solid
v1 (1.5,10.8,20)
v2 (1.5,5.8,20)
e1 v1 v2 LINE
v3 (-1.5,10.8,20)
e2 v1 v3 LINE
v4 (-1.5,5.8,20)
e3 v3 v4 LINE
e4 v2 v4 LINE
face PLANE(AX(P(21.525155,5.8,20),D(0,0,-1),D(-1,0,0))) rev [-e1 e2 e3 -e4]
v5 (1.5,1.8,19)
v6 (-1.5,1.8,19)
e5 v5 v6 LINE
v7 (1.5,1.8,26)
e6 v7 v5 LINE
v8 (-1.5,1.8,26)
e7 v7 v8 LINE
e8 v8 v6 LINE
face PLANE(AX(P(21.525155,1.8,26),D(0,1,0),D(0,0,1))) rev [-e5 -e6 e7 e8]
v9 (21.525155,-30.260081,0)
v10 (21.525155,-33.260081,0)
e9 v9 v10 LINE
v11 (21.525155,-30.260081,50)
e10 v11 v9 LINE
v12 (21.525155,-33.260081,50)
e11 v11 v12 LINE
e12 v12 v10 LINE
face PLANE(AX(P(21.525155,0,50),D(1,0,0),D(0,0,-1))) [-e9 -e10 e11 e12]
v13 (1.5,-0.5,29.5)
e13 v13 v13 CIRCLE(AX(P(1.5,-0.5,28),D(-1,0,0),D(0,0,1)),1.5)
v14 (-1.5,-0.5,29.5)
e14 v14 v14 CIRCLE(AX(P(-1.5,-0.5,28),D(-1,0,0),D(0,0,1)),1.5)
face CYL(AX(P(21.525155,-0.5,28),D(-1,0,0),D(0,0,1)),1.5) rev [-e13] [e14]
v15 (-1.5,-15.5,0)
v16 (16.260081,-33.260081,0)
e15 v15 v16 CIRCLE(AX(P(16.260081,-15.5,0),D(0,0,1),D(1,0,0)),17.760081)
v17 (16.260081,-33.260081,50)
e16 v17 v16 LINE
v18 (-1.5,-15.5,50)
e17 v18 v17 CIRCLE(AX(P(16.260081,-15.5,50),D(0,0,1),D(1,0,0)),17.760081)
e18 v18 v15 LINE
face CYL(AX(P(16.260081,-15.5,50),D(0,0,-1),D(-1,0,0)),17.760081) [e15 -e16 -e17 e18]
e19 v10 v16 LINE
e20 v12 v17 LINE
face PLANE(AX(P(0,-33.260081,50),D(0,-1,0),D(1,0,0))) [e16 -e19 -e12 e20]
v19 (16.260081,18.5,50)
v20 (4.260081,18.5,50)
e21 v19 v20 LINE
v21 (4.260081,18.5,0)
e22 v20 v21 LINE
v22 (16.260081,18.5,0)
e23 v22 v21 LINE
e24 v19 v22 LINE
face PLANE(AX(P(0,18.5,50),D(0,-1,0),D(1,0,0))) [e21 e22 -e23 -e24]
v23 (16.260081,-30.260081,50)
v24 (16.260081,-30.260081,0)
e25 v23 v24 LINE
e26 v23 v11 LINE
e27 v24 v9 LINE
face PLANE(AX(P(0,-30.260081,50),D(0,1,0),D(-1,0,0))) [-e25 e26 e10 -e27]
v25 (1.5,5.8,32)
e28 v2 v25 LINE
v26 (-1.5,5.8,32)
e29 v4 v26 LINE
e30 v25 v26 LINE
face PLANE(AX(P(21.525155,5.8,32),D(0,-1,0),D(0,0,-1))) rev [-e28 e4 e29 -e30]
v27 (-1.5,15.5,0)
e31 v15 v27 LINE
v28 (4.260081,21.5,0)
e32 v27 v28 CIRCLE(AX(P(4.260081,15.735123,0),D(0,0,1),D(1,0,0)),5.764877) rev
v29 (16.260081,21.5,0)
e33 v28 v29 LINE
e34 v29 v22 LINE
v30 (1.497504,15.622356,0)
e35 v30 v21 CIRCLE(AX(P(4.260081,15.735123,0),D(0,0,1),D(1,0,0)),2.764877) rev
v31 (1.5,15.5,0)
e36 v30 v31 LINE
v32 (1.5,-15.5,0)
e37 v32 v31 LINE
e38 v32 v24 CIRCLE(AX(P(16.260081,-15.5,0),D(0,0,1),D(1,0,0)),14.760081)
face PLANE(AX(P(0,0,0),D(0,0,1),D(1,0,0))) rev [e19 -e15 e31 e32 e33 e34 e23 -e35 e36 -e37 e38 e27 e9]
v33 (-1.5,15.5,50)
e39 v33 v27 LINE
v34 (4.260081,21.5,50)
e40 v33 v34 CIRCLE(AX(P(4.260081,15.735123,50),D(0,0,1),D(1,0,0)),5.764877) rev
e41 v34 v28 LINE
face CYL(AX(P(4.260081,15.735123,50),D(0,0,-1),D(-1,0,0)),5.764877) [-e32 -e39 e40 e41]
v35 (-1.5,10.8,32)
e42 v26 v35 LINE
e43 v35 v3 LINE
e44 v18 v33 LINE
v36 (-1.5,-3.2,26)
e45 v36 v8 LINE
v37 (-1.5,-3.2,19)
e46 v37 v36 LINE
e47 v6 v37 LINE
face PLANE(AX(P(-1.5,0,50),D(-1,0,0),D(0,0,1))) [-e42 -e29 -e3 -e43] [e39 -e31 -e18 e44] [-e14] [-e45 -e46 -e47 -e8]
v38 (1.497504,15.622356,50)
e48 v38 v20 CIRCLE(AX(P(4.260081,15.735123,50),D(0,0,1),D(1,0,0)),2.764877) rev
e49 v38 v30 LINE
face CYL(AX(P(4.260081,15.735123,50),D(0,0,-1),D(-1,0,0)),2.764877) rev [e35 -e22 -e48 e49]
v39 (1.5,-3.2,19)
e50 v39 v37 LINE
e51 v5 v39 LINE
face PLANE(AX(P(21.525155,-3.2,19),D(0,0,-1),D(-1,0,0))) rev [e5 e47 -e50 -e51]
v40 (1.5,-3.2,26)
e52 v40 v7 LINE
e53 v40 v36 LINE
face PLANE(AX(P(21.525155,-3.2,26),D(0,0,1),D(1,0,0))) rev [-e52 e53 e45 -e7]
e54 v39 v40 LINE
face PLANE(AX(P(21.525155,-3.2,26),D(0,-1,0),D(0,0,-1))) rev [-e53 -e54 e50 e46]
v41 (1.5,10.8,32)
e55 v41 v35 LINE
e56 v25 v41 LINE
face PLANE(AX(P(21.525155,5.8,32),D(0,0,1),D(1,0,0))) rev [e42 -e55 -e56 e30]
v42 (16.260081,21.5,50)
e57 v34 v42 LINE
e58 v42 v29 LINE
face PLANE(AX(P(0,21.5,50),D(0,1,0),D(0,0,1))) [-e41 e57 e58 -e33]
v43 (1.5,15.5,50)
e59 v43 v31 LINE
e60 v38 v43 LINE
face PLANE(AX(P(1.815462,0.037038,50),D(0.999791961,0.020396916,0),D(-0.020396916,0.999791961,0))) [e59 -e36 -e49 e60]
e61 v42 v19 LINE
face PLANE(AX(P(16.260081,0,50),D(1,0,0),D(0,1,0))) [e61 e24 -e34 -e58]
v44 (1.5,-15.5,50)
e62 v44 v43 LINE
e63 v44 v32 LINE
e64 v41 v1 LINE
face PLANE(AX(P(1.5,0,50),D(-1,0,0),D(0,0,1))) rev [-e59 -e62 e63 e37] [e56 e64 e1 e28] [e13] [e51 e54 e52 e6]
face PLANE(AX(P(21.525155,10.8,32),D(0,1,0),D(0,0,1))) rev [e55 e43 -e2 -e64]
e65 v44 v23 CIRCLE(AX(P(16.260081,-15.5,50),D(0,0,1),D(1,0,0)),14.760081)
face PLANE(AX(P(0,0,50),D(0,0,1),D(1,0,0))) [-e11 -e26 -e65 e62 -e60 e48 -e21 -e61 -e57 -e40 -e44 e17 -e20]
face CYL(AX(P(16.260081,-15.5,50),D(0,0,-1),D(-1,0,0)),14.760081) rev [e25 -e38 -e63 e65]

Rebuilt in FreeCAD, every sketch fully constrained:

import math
import FreeCAD as App
import Part
import Sketcher

V = App.Vector
Q = App.Units.Quantity


def add_polygon(sketch, points):
    """Adds a closed chain of lines whose ends are joined by coincident constraints."""
    first, n = sketch.GeometryCount, len(points)
    for a, b in zip(points, points[1:] + points[:1]):
        sketch.addGeometry(Part.LineSegment(App.Vector(*a, 0), App.Vector(*b, 0)), False)
    for i in range(n):
        sketch.addConstraint(Sketcher.Constraint("Coincident", first + i, 2, first + (i + 1) % n, 1))

doc = App.newDocument("Part")
body = doc.addObject("PartDesign::Body", "Body")

# Sketch on XY plane
sketch1 = body.newObject("Sketcher::SketchObject", "Sketch")
sketch1.AttachmentSupport = (doc.getObject("XY_Plane"), [""])
sketch1.MapMode = "FlatFace"
sketch1.addGeometry([
    Part.LineSegment(V(-1.5, 15.5, 0), V(-1.5, -15.5, 0)),  # 0
    Part.ArcOfCircle(Part.Circle(V(16.26, -15.5, 0), V(0, 0, 1), 17.76), math.radians(180), math.radians(270)),  # 1
    Part.LineSegment(V(16.26, -33.26, 0), V(21.53, -33.26, 0)),  # 2
    Part.LineSegment(V(21.53, -33.26, 0), V(21.53, -30.26, 0)),  # 3
    Part.LineSegment(V(21.53, -30.26, 0), V(16.26, -30.26, 0)),  # 4
    Part.ArcOfCircle(Part.Circle(V(16.26, -15.5, 0), V(0, 0, 1), 14.76), math.radians(-180), math.radians(-90)),  # 5
    Part.LineSegment(V(1.5, -15.5, 0), V(1.5, 15.5, 0)),  # 6
    Part.LineSegment(V(1.5, 15.5, 0), V(1.5, 15.62, 0)),  # 7
    Part.ArcOfCircle(Part.Circle(V(4.26, 15.74, 0), V(0, 0, 1), 2.76), math.radians(90), math.radians(182)),  # 8
    Part.LineSegment(V(4.26, 18.5, 0), V(16.26, 18.5, 0)),  # 9
    Part.LineSegment(V(16.26, 18.5, 0), V(16.26, 21.5, 0)),  # 10
    Part.LineSegment(V(16.26, 21.5, 0), V(4.26, 21.5, 0)),  # 11
    Part.ArcOfCircle(Part.Circle(V(4.26, 15.74, 0), V(0, 0, 1), 5.76), math.radians(90), math.radians(182)),  # 12
], False)
sketch1.addConstraint([
    Sketcher.Constraint("Tangent", 0, 2, 1, 1),
    Sketcher.Constraint("Tangent", 1, 2, 2, 1),
    Sketcher.Constraint("Coincident", 2, 2, 3, 1),
    Sketcher.Constraint("Coincident", 3, 2, 4, 1),
    Sketcher.Constraint("Tangent", 4, 2, 5, 2),
    Sketcher.Constraint("Tangent", 5, 1, 6, 1),
    Sketcher.Constraint("Coincident", 6, 2, 7, 1),
    Sketcher.Constraint("Coincident", 7, 2, 8, 2),
    Sketcher.Constraint("Tangent", 8, 1, 9, 1),
    Sketcher.Constraint("Coincident", 9, 2, 10, 1),
    Sketcher.Constraint("Coincident", 10, 2, 11, 1),
    Sketcher.Constraint("Tangent", 11, 2, 12, 1),
    Sketcher.Constraint("Coincident", 12, 2, 0, 1),
    Sketcher.Constraint("Vertical", 0),
    Sketcher.Constraint("Horizontal", 2),
    Sketcher.Constraint("Vertical", 3),
    Sketcher.Constraint("Horizontal", 4),
    Sketcher.Constraint("Vertical", 6),
    Sketcher.Constraint("Horizontal", 9),
    Sketcher.Constraint("Vertical", 10),
    Sketcher.Constraint("Horizontal", 11),
    Sketcher.Constraint("Coincident", 5, 3, 1, 3),
    Sketcher.Constraint("Coincident", 12, 3, 8, 3),
    Sketcher.Constraint("Symmetric", 0, 2, 6, 2, -1, 1),
    Sketcher.Constraint("Horizontal", 6, 2, 12, 2),
    Sketcher.Constraint("Vertical", 4, 2, 9, 2),
    Sketcher.Constraint("Equal", 3, 10),
    Sketcher.Constraint("DistanceX", 9, 1, 9, 2, Q("12 mm")),
    Sketcher.Constraint("DistanceY", 0, 2, 0, 1, Q("31 mm")),
    Sketcher.Constraint("DistanceY", 3, 1, 3, 2, Q("3 mm")),
    Sketcher.Constraint("DistanceY", 6, 2, 8, 1, Q("3 mm")),
    Sketcher.Constraint("Radius", 1, Q("17.760081 mm")),
    Sketcher.Constraint("Distance", 7, Q("0.122381 mm")),
    Sketcher.Constraint("DistanceX", 2, 1, 2, 2, Q("5.265074 mm")),
])
pad1 = body.newObject("PartDesign::Pad", "Pad")
pad1.Profile = sketch1
pad1.Length = 50

# Sketch on YZ plane
sketch2 = body.newObject("Sketcher::SketchObject", "Sketch001")
sketch2.AttachmentSupport = (doc.getObject("YZ_Plane"), [""])
sketch2.MapMode = "FlatFace"
sketch2.AttachmentOffset = App.Placement(V(0, 0, -1.5), App.Rotation())
sketch2.addGeometry(Part.Circle(V(-0.5, 28, 0), V(0, 0, 1), 1.5), False)  # 0
add_polygon(sketch2, [(1.8, 19), (-3.2, 19), (-3.2, 26), (1.8, 26)])  # lines 1-4
add_polygon(sketch2, [(10.8, 20), (5.8, 20), (5.8, 32), (10.8, 32)])  # lines 5-8
sketch2.addConstraint([
    Sketcher.Constraint("Horizontal", 1),
    Sketcher.Constraint("Vertical", 2),
    Sketcher.Constraint("Horizontal", 3),
    Sketcher.Constraint("Vertical", 4),
    Sketcher.Constraint("Horizontal", 5),
    Sketcher.Constraint("Vertical", 6),
    Sketcher.Constraint("Horizontal", 7),
    Sketcher.Constraint("Vertical", 8),
    Sketcher.Constraint("Equal", 3, 5),
    Sketcher.Constraint("Diameter", 0, Q("3 mm")),
    Sketcher.Constraint("DistanceX", 1, 2, 1, 1, Q("5 mm")),
    Sketcher.Constraint("DistanceY", 2, 1, 2, 2, Q("7 mm")),
    Sketcher.Constraint("DistanceY", 6, 1, 6, 2, Q("12 mm")),
    Sketcher.Constraint("DistanceY", -1, 1, 0, 3, Q("28 mm")),
    Sketcher.Constraint("DistanceY", -1, 1, 1, 2, Q("19 mm")),
    Sketcher.Constraint("DistanceY", -1, 1, 5, 2, Q("20 mm")),
    Sketcher.Constraint("DistanceX", 4, 2, 5, 2, Q("4 mm")),
    Sketcher.Constraint("DistanceX", 0, 3, -1, 1, Q("0.5 mm")),
    Sketcher.Constraint("DistanceX", 1, 2, -1, 1, Q("3.2 mm")),
])
pocket1 = body.newObject("PartDesign::Pocket", "Pocket")
pocket1.Profile = sketch2
pocket1.Type = "ThroughAll"
pocket1.Reversed = True

doc.recompute()
